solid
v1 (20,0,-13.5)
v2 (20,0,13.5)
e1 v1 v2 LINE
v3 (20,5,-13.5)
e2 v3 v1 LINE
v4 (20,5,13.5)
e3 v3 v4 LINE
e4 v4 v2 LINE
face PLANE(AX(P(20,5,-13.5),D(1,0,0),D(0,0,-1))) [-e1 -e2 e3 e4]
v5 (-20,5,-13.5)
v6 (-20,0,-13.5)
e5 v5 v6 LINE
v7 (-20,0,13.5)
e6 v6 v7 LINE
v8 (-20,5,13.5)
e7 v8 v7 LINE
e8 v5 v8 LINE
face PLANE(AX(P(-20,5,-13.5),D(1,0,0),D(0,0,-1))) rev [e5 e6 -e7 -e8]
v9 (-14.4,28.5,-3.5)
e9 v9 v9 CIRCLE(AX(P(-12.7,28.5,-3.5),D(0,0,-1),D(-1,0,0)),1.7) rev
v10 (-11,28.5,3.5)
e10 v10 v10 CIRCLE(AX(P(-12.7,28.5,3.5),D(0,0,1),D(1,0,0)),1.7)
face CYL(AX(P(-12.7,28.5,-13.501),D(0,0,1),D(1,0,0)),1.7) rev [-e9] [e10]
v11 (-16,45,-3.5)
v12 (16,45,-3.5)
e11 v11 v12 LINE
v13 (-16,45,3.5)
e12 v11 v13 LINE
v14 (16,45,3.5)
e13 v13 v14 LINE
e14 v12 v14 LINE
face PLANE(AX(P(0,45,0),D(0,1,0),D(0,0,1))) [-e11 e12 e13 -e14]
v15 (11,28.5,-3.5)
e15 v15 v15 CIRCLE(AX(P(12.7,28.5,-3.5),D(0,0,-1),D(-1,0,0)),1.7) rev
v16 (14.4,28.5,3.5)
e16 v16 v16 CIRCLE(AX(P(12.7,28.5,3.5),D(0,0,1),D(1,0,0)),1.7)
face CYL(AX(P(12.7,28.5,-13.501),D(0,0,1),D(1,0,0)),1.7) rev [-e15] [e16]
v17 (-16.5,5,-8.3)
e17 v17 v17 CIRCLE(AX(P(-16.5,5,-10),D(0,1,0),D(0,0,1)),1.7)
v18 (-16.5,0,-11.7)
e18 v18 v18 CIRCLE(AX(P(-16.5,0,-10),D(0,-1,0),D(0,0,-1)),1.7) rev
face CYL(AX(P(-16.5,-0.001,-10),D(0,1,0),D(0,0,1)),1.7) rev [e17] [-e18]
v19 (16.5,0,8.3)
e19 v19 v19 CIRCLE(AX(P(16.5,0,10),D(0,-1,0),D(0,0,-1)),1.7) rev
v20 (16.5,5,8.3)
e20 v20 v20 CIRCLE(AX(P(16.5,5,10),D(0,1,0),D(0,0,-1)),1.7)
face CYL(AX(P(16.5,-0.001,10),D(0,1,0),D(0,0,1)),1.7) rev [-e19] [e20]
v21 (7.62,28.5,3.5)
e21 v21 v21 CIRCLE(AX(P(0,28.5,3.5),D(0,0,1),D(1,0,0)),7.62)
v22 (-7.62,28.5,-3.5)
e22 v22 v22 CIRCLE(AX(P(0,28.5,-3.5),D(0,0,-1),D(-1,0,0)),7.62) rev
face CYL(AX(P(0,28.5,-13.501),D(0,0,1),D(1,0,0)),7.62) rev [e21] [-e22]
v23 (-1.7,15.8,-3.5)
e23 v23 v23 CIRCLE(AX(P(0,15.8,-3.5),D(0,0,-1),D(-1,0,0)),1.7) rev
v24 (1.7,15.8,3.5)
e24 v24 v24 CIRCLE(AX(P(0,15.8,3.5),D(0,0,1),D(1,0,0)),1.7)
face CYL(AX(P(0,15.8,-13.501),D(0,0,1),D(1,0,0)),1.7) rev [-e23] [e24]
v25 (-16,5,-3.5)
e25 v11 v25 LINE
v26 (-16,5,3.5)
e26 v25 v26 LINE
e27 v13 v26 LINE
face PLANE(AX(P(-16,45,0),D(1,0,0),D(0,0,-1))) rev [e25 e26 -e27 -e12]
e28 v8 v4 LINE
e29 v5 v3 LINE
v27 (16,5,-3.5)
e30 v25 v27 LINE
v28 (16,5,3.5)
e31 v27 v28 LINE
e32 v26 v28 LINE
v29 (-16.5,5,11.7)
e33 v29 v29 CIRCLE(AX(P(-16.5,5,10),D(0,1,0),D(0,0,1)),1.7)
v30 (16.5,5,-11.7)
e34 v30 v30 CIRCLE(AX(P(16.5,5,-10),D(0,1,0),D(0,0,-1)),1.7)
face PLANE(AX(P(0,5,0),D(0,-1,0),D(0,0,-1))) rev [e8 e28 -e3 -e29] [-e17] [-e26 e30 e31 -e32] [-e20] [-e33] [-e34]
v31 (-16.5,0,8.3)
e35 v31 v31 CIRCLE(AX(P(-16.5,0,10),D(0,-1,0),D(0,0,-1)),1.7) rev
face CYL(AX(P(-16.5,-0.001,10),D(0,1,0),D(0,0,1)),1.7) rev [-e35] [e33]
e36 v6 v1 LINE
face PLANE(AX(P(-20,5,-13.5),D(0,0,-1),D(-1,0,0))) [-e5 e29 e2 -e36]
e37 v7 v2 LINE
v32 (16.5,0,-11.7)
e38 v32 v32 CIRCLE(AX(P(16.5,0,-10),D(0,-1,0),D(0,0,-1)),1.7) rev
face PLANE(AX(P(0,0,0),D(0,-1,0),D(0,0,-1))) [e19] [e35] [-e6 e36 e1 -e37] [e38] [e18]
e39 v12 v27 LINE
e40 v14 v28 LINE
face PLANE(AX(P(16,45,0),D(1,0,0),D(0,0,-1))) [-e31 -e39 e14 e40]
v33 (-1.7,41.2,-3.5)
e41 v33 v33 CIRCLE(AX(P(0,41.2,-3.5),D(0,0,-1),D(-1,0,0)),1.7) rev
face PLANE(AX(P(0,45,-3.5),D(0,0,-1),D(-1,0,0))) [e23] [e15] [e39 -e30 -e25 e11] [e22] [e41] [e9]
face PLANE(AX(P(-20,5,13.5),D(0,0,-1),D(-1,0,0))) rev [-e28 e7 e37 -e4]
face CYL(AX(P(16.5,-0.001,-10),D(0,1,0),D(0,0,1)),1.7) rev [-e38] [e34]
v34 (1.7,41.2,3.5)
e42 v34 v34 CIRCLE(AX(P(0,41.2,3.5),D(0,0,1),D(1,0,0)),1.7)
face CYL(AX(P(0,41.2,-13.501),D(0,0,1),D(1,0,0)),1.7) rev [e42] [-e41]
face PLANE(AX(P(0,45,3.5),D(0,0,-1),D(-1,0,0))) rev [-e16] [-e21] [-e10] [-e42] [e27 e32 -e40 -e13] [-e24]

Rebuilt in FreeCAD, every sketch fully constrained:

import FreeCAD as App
import Part
import Sketcher
from FreeCAD import Vector

doc = App.newDocument("Part")
body = doc.addObject("PartDesign::Body", "Body")

# Sketch on XZ plane
sketch1 = body.newObject("Sketcher::SketchObject", "Sketch")
sketch1.AttachmentSupport = (doc.getObject("XZ_Plane"), [""])
sketch1.MapMode = "FlatFace"
sketch1.addGeometry([
    Part.LineSegment(Vector(-20, -13.5, 0), Vector(-20, 13.5, 0)),  # 0
    Part.LineSegment(Vector(-20, 13.5, 0), Vector(20, 13.5, 0)),  # 1
    Part.LineSegment(Vector(20, 13.5, 0), Vector(20, -13.5, 0)),  # 2
    Part.LineSegment(Vector(20, -13.5, 0), Vector(-20, -13.5, 0)),  # 3
    Part.LineSegment(Vector(16, 3.5, 0), Vector(-16, 3.5, 0)),  # 4
    Part.LineSegment(Vector(-16, 3.5, 0), Vector(-16, -3.5, 0)),  # 5
    Part.LineSegment(Vector(-16, -3.5, 0), Vector(16, -3.5, 0)),  # 6
    Part.LineSegment(Vector(16, -3.5, 0), Vector(16, 3.5, 0)),  # 7
], False)
sketch1.addConstraint([
    Sketcher.Constraint("Coincident", 0, 2, 1, 1),
    Sketcher.Constraint("Coincident", 1, 2, 2, 1),
    Sketcher.Constraint("Coincident", 2, 2, 3, 1),
    Sketcher.Constraint("Coincident", 3, 2, 0, 1),
    Sketcher.Constraint("Coincident", 4, 2, 5, 1),
    Sketcher.Constraint("Coincident", 5, 2, 6, 1),
    Sketcher.Constraint("Coincident", 6, 2, 7, 1),
    Sketcher.Constraint("Coincident", 7, 2, 4, 1),
    Sketcher.Constraint("Vertical", 0),
    Sketcher.Constraint("Horizontal", 1),
    Sketcher.Constraint("Vertical", 2),
    Sketcher.Constraint("Horizontal", 3),
    Sketcher.Constraint("Horizontal", 4),
    Sketcher.Constraint("Vertical", 5),
    Sketcher.Constraint("Horizontal", 6),
    Sketcher.Constraint("Vertical", 7),
    Sketcher.Constraint("Symmetric", 0, 2, 2, 2, -1, 1),
    Sketcher.Constraint("Symmetric", 4, 2, 6, 2, -1, 1),
    Sketcher.Constraint("DistanceX", 1, 1, 1, 2, 40.0),
    Sketcher.Constraint("DistanceX", 4, 2, 4, 1, 32.0),
    Sketcher.Constraint("DistanceY", 0, 1, 0, 2, 27.0),
    Sketcher.Constraint("DistanceY", 5, 2, 5, 1, 7.0),
])
pad1 = body.newObject("PartDesign::Pad", "Pad")
pad1.Profile = sketch1
pad1.Length = 5
pad1.Reversed = True

# Sketch on XZ plane
sketch2 = body.newObject("Sketcher::SketchObject", "Sketch001")
sketch2.AttachmentSupport = (doc.getObject("XZ_Plane"), [""])
sketch2.MapMode = "FlatFace"
sketch2.addGeometry([
    Part.LineSegment(Vector(-16, -3.5, 0), Vector(-16, 3.5, 0)),
    Part.LineSegment(Vector(-16, 3.5, 0), Vector(16, 3.5, 0)),
    Part.LineSegment(Vector(16, 3.5, 0), Vector(16, -3.5, 0)),
    Part.LineSegment(Vector(16, -3.5, 0), Vector(-16, -3.5, 0)),
], False)
sketch2.addConstraint([
    Sketcher.Constraint("Coincident", 0, 2, 1, 1),
    Sketcher.Constraint("Coincident", 1, 2, 2, 1),
    Sketcher.Constraint("Coincident", 2, 2, 3, 1),
    Sketcher.Constraint("Coincident", 3, 2, 0, 1),
    Sketcher.Constraint("Vertical", 0),
    Sketcher.Constraint("Horizontal", 1),
    Sketcher.Constraint("Vertical", 2),
    Sketcher.Constraint("Horizontal", 3),
    Sketcher.Constraint("Symmetric", 0, 2, 2, 2, -1, 1),
    Sketcher.Constraint("DistanceX", 1, 1, 1, 2, 32.0),
    Sketcher.Constraint("DistanceY", 0, 1, 0, 2, 7.0),
])
pad2 = body.newObject("PartDesign::Pad", "Pad001")
pad2.Profile = sketch2
pad2.Length = 45
pad2.Reversed = True

# Sketch on XY plane
sketch3 = body.newObject("Sketcher::SketchObject", "Sketch002")
sketch3.AttachmentSupport = (doc.getObject("XY_Plane"), [""])
sketch3.MapMode = "FlatFace"
sketch3.AttachmentOffset = App.Placement(Vector(0, 0, 3.5), App.Rotation())
sketch3.addGeometry(Part.Circle(Vector(0, 28.5, 0), Vector(0, 0, 1), 7.62), False)
sketch3.addConstraint([
    Sketcher.Constraint("PointOnObject", 0, 3, -2),
    Sketcher.Constraint("Diameter", 0, 15.24),
    Sketcher.Constraint("DistanceY", -1, 1, 0, 3, 28.5),
])
pocket1 = body.newObject("PartDesign::Pocket", "Pocket")
pocket1.Profile = sketch3
pocket1.Type = "UpToFirst"

# Sketch on XY plane
sketch4 = body.newObject("Sketcher::SketchObject", "Sketch003")
sketch4.AttachmentSupport = (doc.getObject("XY_Plane"), [""])
sketch4.MapMode = "FlatFace"
sketch4.AttachmentOffset = App.Placement(Vector(0, 0, 3.5), App.Rotation())
sketch4.addGeometry(Part.Circle(Vector(0, 41.2, 0), Vector(0, 0, 1), 1.7), False)
sketch4.addConstraint([
    Sketcher.Constraint("PointOnObject", 0, 3, -2),
    Sketcher.Constraint("Diameter", 0, 3.4),
    Sketcher.Constraint("DistanceY", -1, 1, 0, 3, 41.2),
])
pocket2 = body.newObject("PartDesign::Pocket", "Pocket001")
pocket2.Profile = sketch4
pocket2.Type = "UpToFirst"

# Sketch on XY plane
sketch5 = body.newObject("Sketcher::SketchObject", "Sketch004")
sketch5.AttachmentSupport = (doc.getObject("XY_Plane"), [""])
sketch5.MapMode = "FlatFace"
sketch5.AttachmentOffset = App.Placement(Vector(0, 0, 3.5), App.Rotation())
sketch5.addGeometry(Part.Circle(Vector(12.7, 28.5, 0), Vector(0, 0, 1), 1.7), False)
sketch5.addConstraint([
    Sketcher.Constraint("Diameter", 0, 3.4),
    Sketcher.Constraint("DistanceX", -1, 1, 0, 3, 12.7),
    Sketcher.Constraint("DistanceY", -1, 1, 0, 3, 28.5),
])
pocket3 = body.newObject("PartDesign::Pocket", "Pocket002")
pocket3.Profile = sketch5
pocket3.Type = "UpToFirst"

# Sketch on XY plane
sketch6 = body.newObject("Sketcher::SketchObject", "Sketch005")
sketch6.AttachmentSupport = (doc.getObject("XY_Plane"), [""])
sketch6.MapMode = "FlatFace"
sketch6.AttachmentOffset = App.Placement(Vector(0, 0, 3.5), App.Rotation())
sketch6.addGeometry(Part.Circle(Vector(0, 15.8, 0), Vector(0, 0, 1), 1.7), False)
sketch6.addConstraint([
    Sketcher.Constraint("PointOnObject", 0, 3, -2),
    Sketcher.Constraint("Diameter", 0, 3.4),
    Sketcher.Constraint("DistanceY", -1, 1, 0, 3, 15.8),
])
pocket4 = body.newObject("PartDesign::Pocket", "Pocket003")
pocket4.Profile = sketch6
pocket4.Type = "UpToFirst"

# Sketch on XY plane
sketch7 = body.newObject("Sketcher::SketchObject", "Sketch006")
sketch7.AttachmentSupport = (doc.getObject("XY_Plane"), [""])
sketch7.MapMode = "FlatFace"
sketch7.AttachmentOffset = App.Placement(Vector(0, 0, 3.5), App.Rotation())
sketch7.addGeometry(Part.Circle(Vector(-12.7, 28.5, 0), Vector(0, 0, 1), 1.7), False)
sketch7.addConstraint([
    Sketcher.Constraint("Diameter", 0, 3.4),
    Sketcher.Constraint("DistanceX", 0, 3, -1, 1, 12.7),
    Sketcher.Constraint("DistanceY", -1, 1, 0, 3, 28.5),
])
pocket5 = body.newObject("PartDesign::Pocket", "Pocket004")
pocket5.Profile = sketch7
pocket5.Type = "UpToFirst"

# Sketch on XZ plane
sketch8 = body.newObject("Sketcher::SketchObject", "Sketch007")
sketch8.AttachmentSupport = (doc.getObject("XZ_Plane"), [""])
sketch8.MapMode = "FlatFace"
sketch8.AttachmentOffset = App.Placement(Vector(0, 0, -5), App.Rotation())
sketch8.addGeometry(Part.Circle(Vector(-16.5, -10, 0), Vector(0, 0, 1), 1.7), False)
sketch8.addConstraint([
    Sketcher.Constraint("Diameter", 0, 3.4),
    Sketcher.Constraint("DistanceY", 0, 3, -1, 1, 10.0),
    Sketcher.Constraint("DistanceX", 0, 3, -1, 1, 16.5),
])
pocket6 = body.newObject("PartDesign::Pocket", "Pocket005")
pocket6.Profile = sketch8
pocket6.Type = "UpToFirst"
pocket6.Reversed = True

# Sketch on XZ plane
sketch9 = body.newObject("Sketcher::SketchObject", "Sketch008")
sketch9.AttachmentSupport = (doc.getObject("XZ_Plane"), [""])
sketch9.MapMode = "FlatFace"
sketch9.AttachmentOffset = App.Placement(Vector(0, 0, -5), App.Rotation())
sketch9.addGeometry(Part.Circle(Vector(-16.5, 10, 0), Vector(0, 0, 1), 1.7), False)
sketch9.addConstraint([
    Sketcher.Constraint("Diameter", 0, 3.4),
    Sketcher.Constraint("DistanceY", -1, 1, 0, 3, 10.0),
    Sketcher.Constraint("DistanceX", 0, 3, -1, 1, 16.5),
])
pocket7 = body.newObject("PartDesign::Pocket", "Pocket006")
pocket7.Profile = sketch9
pocket7.Type = "UpToFirst"
pocket7.Reversed = True

# Sketch on XZ plane
sketch10 = body.newObject("Sketcher::SketchObject", "Sketch009")
sketch10.AttachmentSupport = (doc.getObject("XZ_Plane"), [""])
sketch10.MapMode = "FlatFace"
sketch10.AttachmentOffset = App.Placement(Vector(0, 0, -5), App.Rotation())
sketch10.addGeometry(Part.Circle(Vector(16.5, 10, 0), Vector(0, 0, 1), 1.7), False)
sketch10.addConstraint([
    Sketcher.Constraint("Diameter", 0, 3.4),
    Sketcher.Constraint("DistanceY", -1, 1, 0, 3, 10.0),
    Sketcher.Constraint("DistanceX", -1, 1, 0, 3, 16.5),
])
pocket8 = body.newObject("PartDesign::Pocket", "Pocket007")
pocket8.Profile = sketch10
pocket8.Type = "UpToFirst"
pocket8.Reversed = True

# Sketch on XZ plane
sketch11 = body.newObject("Sketcher::SketchObject", "Sketch010")
sketch11.AttachmentSupport = (doc.getObject("XZ_Plane"), [""])
sketch11.MapMode = "FlatFace"
sketch11.AttachmentOffset = App.Placement(Vector(0, 0, -5), App.Rotation())
sketch11.addGeometry(Part.Circle(Vector(16.5, -10, 0), Vector(0, 0, 1), 1.7), False)
sketch11.addConstraint([
    Sketcher.Constraint("Diameter", 0, 3.4),
    Sketcher.Constraint("DistanceY", 0, 3, -1, 1, 10.0),
    Sketcher.Constraint("DistanceX", -1, 1, 0, 3, 16.5),
])
pocket9 = body.newObject("PartDesign::Pocket", "Pocket008")
pocket9.Profile = sketch11
pocket9.Type = "UpToFirst"
pocket9.Reversed = True

doc.recompute()
